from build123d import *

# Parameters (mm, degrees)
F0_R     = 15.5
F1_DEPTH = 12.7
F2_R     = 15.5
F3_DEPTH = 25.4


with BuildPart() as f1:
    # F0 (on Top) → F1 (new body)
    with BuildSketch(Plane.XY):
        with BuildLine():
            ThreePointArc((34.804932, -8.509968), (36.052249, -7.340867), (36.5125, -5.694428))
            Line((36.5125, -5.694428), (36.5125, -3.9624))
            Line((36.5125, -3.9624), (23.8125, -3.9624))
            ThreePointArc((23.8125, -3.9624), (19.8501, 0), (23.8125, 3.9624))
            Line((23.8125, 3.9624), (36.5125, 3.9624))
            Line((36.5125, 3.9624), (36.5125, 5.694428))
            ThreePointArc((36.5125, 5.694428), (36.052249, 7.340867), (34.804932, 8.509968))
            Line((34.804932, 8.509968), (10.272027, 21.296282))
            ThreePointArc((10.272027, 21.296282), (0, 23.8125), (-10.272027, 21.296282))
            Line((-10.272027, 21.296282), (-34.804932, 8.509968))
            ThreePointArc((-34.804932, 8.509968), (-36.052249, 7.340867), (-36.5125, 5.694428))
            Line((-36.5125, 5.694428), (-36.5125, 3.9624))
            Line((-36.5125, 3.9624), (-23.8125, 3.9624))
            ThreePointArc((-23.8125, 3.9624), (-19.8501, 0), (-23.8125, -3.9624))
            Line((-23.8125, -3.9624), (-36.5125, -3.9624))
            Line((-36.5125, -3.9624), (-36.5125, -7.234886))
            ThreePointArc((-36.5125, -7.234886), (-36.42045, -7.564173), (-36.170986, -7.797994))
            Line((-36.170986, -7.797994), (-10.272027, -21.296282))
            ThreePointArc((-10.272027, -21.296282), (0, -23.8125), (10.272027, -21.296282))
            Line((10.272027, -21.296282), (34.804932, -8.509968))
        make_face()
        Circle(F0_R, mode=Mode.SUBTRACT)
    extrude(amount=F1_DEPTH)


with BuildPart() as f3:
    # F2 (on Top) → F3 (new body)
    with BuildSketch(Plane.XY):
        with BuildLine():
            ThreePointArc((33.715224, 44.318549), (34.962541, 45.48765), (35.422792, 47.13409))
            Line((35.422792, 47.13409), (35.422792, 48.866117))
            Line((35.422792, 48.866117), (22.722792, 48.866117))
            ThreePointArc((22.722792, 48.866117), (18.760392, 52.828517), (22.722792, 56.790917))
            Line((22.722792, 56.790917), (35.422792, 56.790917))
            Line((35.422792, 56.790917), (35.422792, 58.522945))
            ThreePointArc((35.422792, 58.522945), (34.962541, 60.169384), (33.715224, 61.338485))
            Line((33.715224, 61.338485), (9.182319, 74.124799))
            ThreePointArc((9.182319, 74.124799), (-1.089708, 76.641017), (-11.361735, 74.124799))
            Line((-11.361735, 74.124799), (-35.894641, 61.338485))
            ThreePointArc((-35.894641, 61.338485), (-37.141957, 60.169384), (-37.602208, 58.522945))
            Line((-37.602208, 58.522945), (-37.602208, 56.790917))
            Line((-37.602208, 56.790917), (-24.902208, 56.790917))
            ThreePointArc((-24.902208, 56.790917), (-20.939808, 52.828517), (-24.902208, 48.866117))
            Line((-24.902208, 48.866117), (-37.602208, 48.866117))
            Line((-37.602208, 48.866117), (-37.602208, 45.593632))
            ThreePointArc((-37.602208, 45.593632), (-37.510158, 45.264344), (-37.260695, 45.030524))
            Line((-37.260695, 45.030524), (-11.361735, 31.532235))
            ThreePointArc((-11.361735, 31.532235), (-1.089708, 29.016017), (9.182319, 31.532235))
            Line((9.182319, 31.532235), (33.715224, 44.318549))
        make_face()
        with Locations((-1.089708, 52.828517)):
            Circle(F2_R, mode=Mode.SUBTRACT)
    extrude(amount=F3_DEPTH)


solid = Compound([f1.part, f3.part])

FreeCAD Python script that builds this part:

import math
import FreeCAD as App
import Part
import Sketcher

V = App.Vector
Q = App.Units.Quantity

doc = App.newDocument("Part")
body = doc.addObject("PartDesign::Body", "Body")

# Sketch on XY plane
sketch1 = body.newObject("Sketcher::SketchObject", "Sketch")
sketch1.AttachmentSupport = (doc.getObject("XY_Plane"), [""])
sketch1.MapMode = "FlatFace"
sketch1.addGeometry(Part.ArcOfCircle(Part.Circle(V(33.3375, -5.694428, 0), V(0, 0, 1), 3.175), math.radians(-62.471919), math.radians(-0.000007)), False)
sketch1.addGeometry(Part.LineSegment(V(36.5125, -5.694428, 0), V(36.5125, -3.9624, 0)), False)
sketch1.addGeometry(Part.LineSegment(V(36.5125, -3.9624, 0), V(23.8125, -3.9624, 0)), False)
sketch1.addGeometry(Part.ArcOfCircle(Part.Circle(V(23.8125, 0, 0), V(0, 0, 1), 3.9624), math.radians(90), math.radians(270)), False)
sketch1.addGeometry(Part.LineSegment(V(23.8125, 3.9624, 0), V(36.5125, 3.9624, 0)), False)
sketch1.addGeometry(Part.LineSegment(V(36.5125, 3.9624, 0), V(36.5125, 5.694428, 0)), False)
sketch1.addGeometry(Part.ArcOfCircle(Part.Circle(V(33.3375, 5.694428, 0), V(0, 0, 1), 3.175), math.radians(0.000007), math.radians(62.471919)), False)
sketch1.addGeometry(Part.LineSegment(V(34.804932, 8.509968, 0), V(10.272027, 21.296282, 0)), False)
sketch1.addGeometry(Part.ArcOfCircle(Part.Circle(V(0, 1.5875, 0), V(0, 0, 1), 22.225), math.radians(62.471909), math.radians(117.528091)), False)
sketch1.addGeometry(Part.LineSegment(V(-10.272027, 21.296282, 0), V(-34.804932, 8.509968, 0)), False)
sketch1.addGeometry(Part.ArcOfCircle(Part.Circle(V(-33.3375, 5.694428, 0), V(0, 0, 1), 3.175), math.radians(117.528081), math.radians(179.999993)), False)
sketch1.addGeometry(Part.LineSegment(V(-36.5125, 5.694428, 0), V(-36.5125, 3.9624, 0)), False)
sketch1.addGeometry(Part.LineSegment(V(-36.5125, 3.9624, 0), V(-23.8125, 3.9624, 0)), False)
sketch1.addGeometry(Part.ArcOfCircle(Part.Circle(V(-23.8125, 0, 0), V(0, 0, 1), 3.9624), math.radians(-90), math.radians(90)), False)
sketch1.addGeometry(Part.LineSegment(V(-23.8125, -3.9624, 0), V(-36.5125, -3.9624, 0)), False)
sketch1.addGeometry(Part.LineSegment(V(-36.5125, -3.9624, 0), V(-36.5125, -7.234886, 0)), False)
sketch1.addGeometry(Part.ArcOfCircle(Part.Circle(V(-35.877499, -7.234885, 0), V(0, 0, 1), 0.635001), math.radians(-179.99993), math.radians(-117.528084)), False)
sketch1.addGeometry(Part.LineSegment(V(-36.170986, -7.797994, 0), V(-10.272027, -21.296282, 0)), False)
sketch1.addGeometry(Part.ArcOfCircle(Part.Circle(V(0, -1.5875, 0), V(0, 0, 1), 22.225), math.radians(-117.528091), math.radians(-62.471909)), False)
sketch1.addGeometry(Part.LineSegment(V(10.272027, -21.296282, 0), V(34.804932, -8.509968, 0)), False)
sketch1.addGeometry(Part.Circle(V(0, 0, 0), V(0, 0, 1), 15.5), False)
sketch1.addConstraint(Sketcher.Constraint("Tangent", 0, 2, 1, 1))
sketch1.addConstraint(Sketcher.Constraint("Coincident", 1, 2, 2, 1))
sketch1.addConstraint(Sketcher.Constraint("Tangent", 2, 2, 3, 2))
sketch1.addConstraint(Sketcher.Constraint("Tangent", 3, 1, 4, 1))
sketch1.addConstraint(Sketcher.Constraint("Coincident", 4, 2, 5, 1))
sketch1.addConstraint(Sketcher.Constraint("Tangent", 5, 2, 6, 1))
sketch1.addConstraint(Sketcher.Constraint("Tangent", 6, 2, 7, 1))
sketch1.addConstraint(Sketcher.Constraint("Tangent", 7, 2, 8, 1))
sketch1.addConstraint(Sketcher.Constraint("Tangent", 8, 2, 9, 1))
sketch1.addConstraint(Sketcher.Constraint("Tangent", 9, 2, 10, 1))
sketch1.addConstraint(Sketcher.Constraint("Tangent", 10, 2, 11, 1))
sketch1.addConstraint(Sketcher.Constraint("Coincident", 11, 2, 12, 1))
sketch1.addConstraint(Sketcher.Constraint("Tangent", 12, 2, 13, 2))
sketch1.addConstraint(Sketcher.Constraint("Tangent", 13, 1, 14, 1))
sketch1.addConstraint(Sketcher.Constraint("Coincident", 14, 2, 15, 1))
sketch1.addConstraint(Sketcher.Constraint("Tangent", 15, 2, 16, 1))
sketch1.addConstraint(Sketcher.Constraint("Tangent", 16, 2, 17, 1))
sketch1.addConstraint(Sketcher.Constraint("Tangent", 17, 2, 18, 1))
sketch1.addConstraint(Sketcher.Constraint("Tangent", 18, 2, 19, 1))
sketch1.addConstraint(Sketcher.Constraint("Tangent", 19, 2, 0, 1))
sketch1.addConstraint(Sketcher.Constraint("Vertical", 1))
sketch1.addConstraint(Sketcher.Constraint("Horizontal", 2))
sketch1.addConstraint(Sketcher.Constraint("Horizontal", 4))
sketch1.addConstraint(Sketcher.Constraint("Vertical", 5))
sketch1.addConstraint(Sketcher.Constraint("Vertical", 11))
sketch1.addConstraint(Sketcher.Constraint("Horizontal", 12))
sketch1.addConstraint(Sketcher.Constraint("Horizontal", 14))
sketch1.addConstraint(Sketcher.Constraint("Vertical", 15))
sketch1.addConstraint(Sketcher.Constraint("Coincident", 20, 3, -1, 1))
sketch1.addConstraint(Sketcher.Constraint("Equal", 0, 6))
sketch1.addConstraint(Sketcher.Constraint("Equal", 6, 10))
sketch1.addConstraint(Sketcher.Constraint("Equal", 3, 13))
sketch1.addConstraint(Sketcher.Constraint("Equal", 8, 18))
sketch1.addConstraint(Sketcher.Constraint("Symmetric", 0, 3, 10, 3, -1, 1))
sketch1.addConstraint(Sketcher.Constraint("Symmetric", 3, 3, 13, 3, -1, 1))
sketch1.addConstraint(Sketcher.Constraint("Symmetric", 8, 3, 18, 3, -1, 1))
sketch1.addConstraint(Sketcher.Constraint("Symmetric", 6, 3, 10, 3, -2))
sketch1.addConstraint(Sketcher.Constraint("Symmetric", 1, 2, 14, 2, -2))
sketch1.addConstraint(Sketcher.Constraint("Symmetric", 17, 2, 18, 2, -2))
sketch1.addConstraint(Sketcher.Constraint("DistanceX", 2, 2, 2, 1, Q("0.5 in")))
sketch1.addConstraint(Sketcher.Constraint("Radius", 0, Q("0.125 in")))
sketch1.addConstraint(Sketcher.Constraint("Radius", 3, Q("0.156 in")))
sketch1.addConstraint(Sketcher.Constraint("Radius", 8, Q("0.875 in")))
sketch1.addConstraint(Sketcher.Constraint("Radius", 16, Q("0.025 in")))
sketch1.addConstraint(Sketcher.Constraint("Diameter", 20, 31.0))
sketch1.addConstraint(Sketcher.Constraint("DistanceX", 10, 3, 3, 3, Q("2.25 in")))
sketch1.addConstraint(Sketcher.Constraint("DistanceY", -1, 1, 8, 3, Q("0.0625 in")))
sketch1.addConstraint(Sketcher.Constraint("DistanceY", 1, 1, 1, 2, 1.732028))
pad1 = body.newObject("PartDesign::Pad", "Pad")
pad1.Profile = sketch1
pad1.Length = Q("0.5 in")
body2 = doc.addObject("PartDesign::Body", "Body001")

# Sketch on XY plane
sketch2 = body2.newObject("Sketcher::SketchObject", "Sketch001")
sketch2.AttachmentSupport = (doc.getObject("XY_Plane001"), [""])
sketch2.MapMode = "FlatFace"
sketch2.addGeometry(Part.ArcOfCircle(Part.Circle(V(32.247792, 47.134089, 0), V(0, 0, 1), 3.175), math.radians(-62.471919), math.radians(0.000011)), False)
sketch2.addGeometry(Part.LineSegment(V(35.422792, 47.13409, 0), V(35.422792, 48.866117, 0)), False)
sketch2.addGeometry(Part.LineSegment(V(35.422792, 48.866117, 0), V(22.722792, 48.866117, 0)), False)
sketch2.addGeometry(Part.ArcOfCircle(Part.Circle(V(22.722792, 52.828517, 0), V(0, 0, 1), 3.9624), math.radians(90), math.radians(270)), False)
sketch2.addGeometry(Part.LineSegment(V(22.722792, 56.790917, 0), V(35.422792, 56.790917, 0)), False)
sketch2.addGeometry(Part.LineSegment(V(35.422792, 56.790917, 0), V(35.422792, 58.522945, 0)), False)
sketch2.addGeometry(Part.ArcOfCircle(Part.Circle(V(32.247792, 58.522945, 0), V(0, 0, 1), 3.175), math.radians(0.000007), math.radians(62.471919)), False)
sketch2.addGeometry(Part.LineSegment(V(33.715224, 61.338485, 0), V(9.182319, 74.124799, 0)), False)
sketch2.addGeometry(Part.ArcOfCircle(Part.Circle(V(-1.089708, 54.416017, 0), V(0, 0, 1), 22.225), math.radians(62.471909), math.radians(117.528091)), False)
sketch2.addGeometry(Part.LineSegment(V(-11.361735, 74.124799, 0), V(-35.894641, 61.338485, 0)), False)
sketch2.addGeometry(Part.ArcOfCircle(Part.Circle(V(-34.427207, 58.522944, 0), V(0, 0, 1), 3.175001), math.radians(117.528118), math.radians(179.999985)), False)
sketch2.addGeometry(Part.LineSegment(V(-37.602208, 58.522945, 0), V(-37.602208, 56.790917, 0)), False)
sketch2.addGeometry(Part.LineSegment(V(-37.602208, 56.790917, 0), V(-24.902208, 56.790917, 0)), False)
sketch2.addGeometry(Part.ArcOfCircle(Part.Circle(V(-24.902208, 52.828517, 0), V(0, 0, 1), 3.9624), math.radians(-90), math.radians(90)), False)
sketch2.addGeometry(Part.LineSegment(V(-24.902208, 48.866117, 0), V(-37.602208, 48.866117, 0)), False)
sketch2.addGeometry(Part.LineSegment(V(-37.602208, 48.866117, 0), V(-37.602208, 45.593632, 0)), False)
sketch2.addGeometry(Part.ArcOfCircle(Part.Circle(V(-36.967209, 45.593631, 0), V(0, 0, 1), 0.634999), math.radians(179.999943), math.radians(242.471895)), False)
sketch2.addGeometry(Part.LineSegment(V(-37.260695, 45.030524, 0), V(-11.361735, 31.532235, 0)), False)
sketch2.addGeometry(Part.ArcOfCircle(Part.Circle(V(-1.089708, 51.241017, 0), V(0, 0, 1), 22.225), math.radians(-117.528091), math.radians(-62.471909)), False)
sketch2.addGeometry(Part.LineSegment(V(9.182319, 31.532235, 0), V(33.715224, 44.318549, 0)), False)
sketch2.addGeometry(Part.Circle(V(-1.089708, 52.828517, 0), V(0, 0, 1), 15.5), False)
sketch2.addConstraint(Sketcher.Constraint("Tangent", 0, 2, 1, 1))
sketch2.addConstraint(Sketcher.Constraint("Coincident", 1, 2, 2, 1))
sketch2.addConstraint(Sketcher.Constraint("Tangent", 2, 2, 3, 2))
sketch2.addConstraint(Sketcher.Constraint("Tangent", 3, 1, 4, 1))
sketch2.addConstraint(Sketcher.Constraint("Coincident", 4, 2, 5, 1))
sketch2.addConstraint(Sketcher.Constraint("Tangent", 5, 2, 6, 1))
sketch2.addConstraint(Sketcher.Constraint("Tangent", 6, 2, 7, 1))
sketch2.addConstraint(Sketcher.Constraint("Tangent", 7, 2, 8, 1))
sketch2.addConstraint(Sketcher.Constraint("Tangent", 8, 2, 9, 1))
sketch2.addConstraint(Sketcher.Constraint("Tangent", 9, 2, 10, 1))
sketch2.addConstraint(Sketcher.Constraint("Tangent", 10, 2, 11, 1))
sketch2.addConstraint(Sketcher.Constraint("Coincident", 11, 2, 12, 1))
sketch2.addConstraint(Sketcher.Constraint("Tangent", 12, 2, 13, 2))
sketch2.addConstraint(Sketcher.Constraint("Tangent", 13, 1, 14, 1))
sketch2.addConstraint(Sketcher.Constraint("Coincident", 14, 2, 15, 1))
sketch2.addConstraint(Sketcher.Constraint("Tangent", 15, 2, 16, 1))
sketch2.addConstraint(Sketcher.Constraint("Tangent", 16, 2, 17, 1))
sketch2.addConstraint(Sketcher.Constraint("Tangent", 17, 2, 18, 1))
sketch2.addConstraint(Sketcher.Constraint("Tangent", 18, 2, 19, 1))
sketch2.addConstraint(Sketcher.Constraint("Tangent", 19, 2, 0, 1))
sketch2.addConstraint(Sketcher.Constraint("Vertical", 1))
sketch2.addConstraint(Sketcher.Constraint("Horizontal", 2))
sketch2.addConstraint(Sketcher.Constraint("Horizontal", 4))
sketch2.addConstraint(Sketcher.Constraint("Vertical", 5))
sketch2.addConstraint(Sketcher.Constraint("Vertical", 11))
sketch2.addConstraint(Sketcher.Constraint("Horizontal", 12))
sketch2.addConstraint(Sketcher.Constraint("Horizontal", 14))
sketch2.addConstraint(Sketcher.Constraint("Vertical", 15))
sketch2.addConstraint(Sketcher.Constraint("Equal", 0, 6))
sketch2.addConstraint(Sketcher.Constraint("Equal", 6, 10))
sketch2.addConstraint(Sketcher.Constraint("Equal", 3, 13))
sketch2.addConstraint(Sketcher.Constraint("Equal", 8, 18))
sketch2.addConstraint(Sketcher.Constraint("Parallel", 7, 17))
sketch2.addConstraint(Sketcher.Constraint("Parallel", 9, 19))
sketch2.addConstraint(Sketcher.Constraint("Horizontal", 6, 3, 10, 3))
sketch2.addConstraint(Sketcher.Constraint("Horizontal", 3, 3, 13, 3))
sketch2.addConstraint(Sketcher.Constraint("Horizontal", 13, 3, 20, 3))
sketch2.addConstraint(Sketcher.Constraint("Horizontal", 7, 2, 8, 2))
sketch2.addConstraint(Sketcher.Constraint("Vertical", 0, 3, 6, 3))
sketch2.addConstraint(Sketcher.Constraint("Vertical", 8, 3, 18, 3))
sketch2.addConstraint(Sketcher.Constraint("Vertical", 18, 3, 20, 3))
sketch2.addConstraint(Sketcher.Constraint("Vertical", 11, 2, 14, 2))
sketch2.addConstraint(Sketcher.Constraint("Equal", 4, 12))
sketch2.addConstraint(Sketcher.Constraint("Equal", 1, 5))
sketch2.addConstraint(Sketcher.Constraint("DistanceX", 2, 2, 2, 1, Q("0.5 in")))
sketch2.addConstraint(Sketcher.Constraint("Radius", 0, Q("0.125 in")))
sketch2.addConstraint(Sketcher.Constraint("Radius", 3, Q("0.156 in")))
sketch2.addConstraint(Sketcher.Constraint("Radius", 8, Q("0.875 in")))
sketch2.addConstraint(Sketcher.Constraint("Radius", 16, Q("0.025 in")))
sketch2.addConstraint(Sketcher.Constraint("Diameter", 20, 31.0))
sketch2.addConstraint(Sketcher.Constraint("DistanceX", 10, 3, 3, 3, Q("2.2499999 in")))
sketch2.addConstraint(Sketcher.Constraint("DistanceY", 3, 3, 8, 3, Q("0.0625 in")))
sketch2.addConstraint(Sketcher.Constraint("DistanceY", -1, 1, 7, 2, 74.124799))
sketch2.addConstraint(Sketcher.Constraint("Distance", 7, 27.665019))
sketch2.addConstraint(Sketcher.Constraint("DistanceX", -1, 1, 3, 3, 22.722792))
pad2 = body2.newObject("PartDesign::Pad", "Pad001")
pad2.Profile = sketch2
pad2.Length = Q("1 in")

doc.recompute()
